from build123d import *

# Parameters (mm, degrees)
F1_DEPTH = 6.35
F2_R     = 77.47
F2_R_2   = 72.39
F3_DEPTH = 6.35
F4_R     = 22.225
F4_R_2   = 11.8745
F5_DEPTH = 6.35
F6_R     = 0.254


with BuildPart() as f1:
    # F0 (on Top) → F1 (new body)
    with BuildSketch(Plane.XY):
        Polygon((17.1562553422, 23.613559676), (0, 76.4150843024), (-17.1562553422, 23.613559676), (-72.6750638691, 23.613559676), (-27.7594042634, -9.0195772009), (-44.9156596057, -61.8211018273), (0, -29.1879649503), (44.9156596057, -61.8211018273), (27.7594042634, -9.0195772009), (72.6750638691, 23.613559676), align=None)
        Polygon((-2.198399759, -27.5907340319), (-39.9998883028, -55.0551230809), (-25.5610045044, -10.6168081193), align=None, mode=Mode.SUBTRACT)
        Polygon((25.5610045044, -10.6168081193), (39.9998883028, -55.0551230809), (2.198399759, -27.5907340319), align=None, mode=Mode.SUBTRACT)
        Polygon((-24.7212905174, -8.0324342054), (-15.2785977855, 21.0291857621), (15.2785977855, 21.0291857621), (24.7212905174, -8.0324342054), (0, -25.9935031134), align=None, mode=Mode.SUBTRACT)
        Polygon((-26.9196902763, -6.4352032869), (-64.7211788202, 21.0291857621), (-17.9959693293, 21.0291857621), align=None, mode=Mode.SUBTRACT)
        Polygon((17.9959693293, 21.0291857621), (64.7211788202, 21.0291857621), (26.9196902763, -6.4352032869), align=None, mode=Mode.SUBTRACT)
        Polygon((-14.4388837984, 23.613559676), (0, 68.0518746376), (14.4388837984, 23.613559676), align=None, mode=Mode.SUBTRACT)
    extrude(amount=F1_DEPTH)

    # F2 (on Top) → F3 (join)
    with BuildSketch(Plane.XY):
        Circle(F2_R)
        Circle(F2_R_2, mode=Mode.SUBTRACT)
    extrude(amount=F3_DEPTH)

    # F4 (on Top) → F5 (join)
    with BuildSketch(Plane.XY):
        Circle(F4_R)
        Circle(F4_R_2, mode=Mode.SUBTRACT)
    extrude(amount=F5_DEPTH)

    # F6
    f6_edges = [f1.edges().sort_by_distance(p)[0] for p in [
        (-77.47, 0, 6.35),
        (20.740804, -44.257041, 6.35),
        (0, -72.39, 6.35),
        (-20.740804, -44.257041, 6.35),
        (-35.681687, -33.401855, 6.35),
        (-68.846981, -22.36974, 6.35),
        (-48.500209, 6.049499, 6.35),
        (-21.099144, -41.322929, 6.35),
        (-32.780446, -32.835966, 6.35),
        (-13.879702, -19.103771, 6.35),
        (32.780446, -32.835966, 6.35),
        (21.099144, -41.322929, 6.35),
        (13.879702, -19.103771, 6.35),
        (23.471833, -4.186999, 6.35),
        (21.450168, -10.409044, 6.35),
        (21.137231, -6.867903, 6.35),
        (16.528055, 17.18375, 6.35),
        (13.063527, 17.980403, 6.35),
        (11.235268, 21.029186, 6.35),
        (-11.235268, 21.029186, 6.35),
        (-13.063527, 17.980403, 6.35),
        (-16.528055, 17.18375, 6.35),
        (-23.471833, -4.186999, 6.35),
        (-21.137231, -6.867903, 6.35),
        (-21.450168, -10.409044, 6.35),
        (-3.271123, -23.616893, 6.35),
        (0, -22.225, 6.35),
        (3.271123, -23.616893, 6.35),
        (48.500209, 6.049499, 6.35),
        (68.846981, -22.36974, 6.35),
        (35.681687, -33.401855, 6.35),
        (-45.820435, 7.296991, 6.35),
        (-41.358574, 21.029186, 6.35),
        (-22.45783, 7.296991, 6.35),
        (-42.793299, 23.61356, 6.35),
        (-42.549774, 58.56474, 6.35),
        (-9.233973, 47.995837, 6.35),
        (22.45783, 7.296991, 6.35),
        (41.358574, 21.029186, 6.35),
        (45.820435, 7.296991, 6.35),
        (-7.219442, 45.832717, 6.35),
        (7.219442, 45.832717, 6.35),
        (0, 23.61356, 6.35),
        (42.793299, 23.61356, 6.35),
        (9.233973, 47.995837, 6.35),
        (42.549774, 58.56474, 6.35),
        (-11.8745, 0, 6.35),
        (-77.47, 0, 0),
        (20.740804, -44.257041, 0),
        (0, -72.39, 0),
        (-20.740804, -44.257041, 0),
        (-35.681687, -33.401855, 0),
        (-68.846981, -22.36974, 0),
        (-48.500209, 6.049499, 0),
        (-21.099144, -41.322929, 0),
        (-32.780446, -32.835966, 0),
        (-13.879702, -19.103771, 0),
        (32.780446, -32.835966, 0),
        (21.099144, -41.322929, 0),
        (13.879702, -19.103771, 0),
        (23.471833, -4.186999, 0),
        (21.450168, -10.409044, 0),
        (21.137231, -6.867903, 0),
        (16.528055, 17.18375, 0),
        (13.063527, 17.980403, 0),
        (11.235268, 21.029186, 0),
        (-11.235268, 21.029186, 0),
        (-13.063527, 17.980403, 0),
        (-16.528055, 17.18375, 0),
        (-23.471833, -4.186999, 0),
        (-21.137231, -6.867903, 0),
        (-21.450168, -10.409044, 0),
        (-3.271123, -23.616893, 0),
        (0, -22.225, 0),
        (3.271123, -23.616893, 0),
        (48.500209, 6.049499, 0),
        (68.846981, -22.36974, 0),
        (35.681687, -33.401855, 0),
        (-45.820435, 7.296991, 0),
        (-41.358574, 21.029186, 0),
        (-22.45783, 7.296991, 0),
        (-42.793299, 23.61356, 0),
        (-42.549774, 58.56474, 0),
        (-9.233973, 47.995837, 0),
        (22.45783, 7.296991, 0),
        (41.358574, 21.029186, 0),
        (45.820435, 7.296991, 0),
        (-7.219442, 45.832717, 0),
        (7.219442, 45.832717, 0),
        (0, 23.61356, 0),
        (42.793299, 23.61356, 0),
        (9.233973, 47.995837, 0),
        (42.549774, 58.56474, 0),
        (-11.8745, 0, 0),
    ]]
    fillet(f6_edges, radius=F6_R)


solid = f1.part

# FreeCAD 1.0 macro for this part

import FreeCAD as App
import Part
import Sketcher

V = App.Vector
Q = App.Units.Quantity


def edges_at(feature, points):
    """Names of the edges that pass closest to the given points."""
    edges = feature.Shape.Edges
    near = lambda p: min(range(len(edges)), key=lambda i: edges[i].distToShape(Part.Vertex(*p))[0])
    return sorted({f"Edge{near(p) + 1}" for p in points})


def add_polygon(sketch, points):
    """Adds a closed chain of lines whose ends are joined by coincident constraints."""
    first, n = sketch.GeometryCount, len(points)
    for a, b in zip(points, points[1:] + points[:1]):
        sketch.addGeometry(Part.LineSegment(App.Vector(*a, 0), App.Vector(*b, 0)), False)
    for i in range(n):
        sketch.addConstraint(Sketcher.Constraint("Coincident", first + i, 2, first + (i + 1) % n, 1))

doc = App.newDocument("Part")
body = doc.addObject("PartDesign::Body", "Body")

# Sketch on XY plane
sketch1 = doc.addObject("Sketcher::SketchObject", "Sketch")
body.addObject(sketch1)
sketch1.AttachmentSupport = (doc.XY_Plane, [""])
sketch1.MapMode = "FlatFace"
add_polygon(sketch1, [(17, 24), (0, 76), (-17, 24), (-73, 24), (-28, -9), (-45, -62), (0, -29), (45, -62), (28, -9), (73, 24)])  # lines 0-9
add_polygon(sketch1, [(-26, -11), (-2, -28), (-40, -55)])  # lines 10-12
add_polygon(sketch1, [(2, -28), (26, -11), (40, -55)])  # lines 13-15
add_polygon(sketch1, [(0, -26), (-25, -8), (-15, 21), (15, 21), (25, -8)])  # lines 16-20
add_polygon(sketch1, [(-18, 21), (-27, -6), (-65, 21)])  # lines 21-23
add_polygon(sketch1, [(27, -6), (18, 21), (65, 21)])  # lines 24-26
add_polygon(sketch1, [(14, 24), (-14, 24), (0, 68)])  # lines 27-29
sketch1.addConstraint([
    Sketcher.Constraint("Horizontal", 2),
    Sketcher.Constraint("Horizontal", 9),
    Sketcher.Constraint("Horizontal", 18),
    Sketcher.Constraint("Horizontal", 23),
    Sketcher.Constraint("Horizontal", 25),
    Sketcher.Constraint("Horizontal", 27),
    Sketcher.Constraint("Symmetric", 4, 2, 6, 2, -2),
    Sketcher.Constraint("Symmetric", 3, 2, 7, 2, -2),
    Sketcher.Constraint("Symmetric", 2, 2, 8, 2, -2),
    Sketcher.Constraint("Symmetric", 12, 2, 13, 2, -2),
    Sketcher.Constraint("Symmetric", 11, 2, 14, 2, -2),
    Sketcher.Constraint("Symmetric", 10, 2, 15, 2, -2),
    Sketcher.Constraint("Symmetric", 16, 2, 19, 2, -2),
    Sketcher.Constraint("Symmetric", 23, 2, 24, 2, -2),
    Sketcher.Constraint("Symmetric", 21, 2, 26, 2, -2),
    Sketcher.Constraint("PointOnObject", 0, 2, -2),
    Sketcher.Constraint("PointOnObject", 5, 2, -2),
    Sketcher.Constraint("PointOnObject", 20, 2, -2),
    Sketcher.Constraint("PointOnObject", 28, 2, -2),
    Sketcher.Constraint("Parallel", 1, 4),
    Sketcher.Constraint("Parallel", 3, 6),
    Sketcher.Constraint("Parallel", 0, 7),
    Sketcher.Constraint("Parallel", 6, 10),
    Sketcher.Constraint("Parallel", 8, 11),
    Sketcher.Constraint("Parallel", 4, 12),
    Sketcher.Constraint("Parallel", 15, 16),
    Sketcher.Constraint("Parallel", 12, 17),
    Sketcher.Constraint("Parallel", 14, 19),
    Sketcher.Constraint("Parallel", 17, 21),
    Sketcher.Constraint("Parallel", 16, 22),
    Sketcher.Constraint("Parallel", 20, 26),
    Sketcher.Constraint("Parallel", 21, 28),
    Sketcher.Constraint("Parallel", 24, 29),
    Sketcher.Constraint("Horizontal", 18, 2, 22, 2),
    Sketcher.Constraint("Horizontal", 9, 2, 27, 2),
    Sketcher.Constraint("Equal", 1, 3),
    Sketcher.Constraint("Equal", 3, 4),
    Sketcher.Constraint("Equal", 4, 5),
    Sketcher.Constraint("Equal", 11, 12),
    Sketcher.Constraint("Equal", 16, 17),
    Sketcher.Constraint("Equal", 13, 21),
    Sketcher.Constraint("Equal", 15, 22),
    Sketcher.Constraint("Equal", 26, 28),
    Sketcher.Constraint("DistanceY", 1, 2, 0, 2, Q("2.0788002 in")),
    Sketcher.Constraint("DistanceX", 23, 1, 23, 2, Q("46.725209 mm")),
    Sketcher.Constraint("DistanceY", 4, 2, -1, 1, Q("61.821102 mm")),
    Sketcher.Constraint("DistanceX", 10, 2, -1, 1, Q("2.1984 mm")),
    Sketcher.Constraint("DistanceY", 10, 2, 16, 2, Q("19.5583 mm")),
    Sketcher.Constraint("DistanceX", 21, 2, 16, 2, Q("2.1984 mm")),
    Sketcher.Constraint("DistanceX", 18, 1, 18, 2, Q("30.557196 mm")),
    Sketcher.Constraint("DistanceY", 12, 2, -1, 1, Q("10.616808 mm")),
])
pad1 = doc.addObject("PartDesign::Pad", "Pad")
body.addObject(pad1)
pad1.Profile = sketch1
pad1.Length = Q("0.25 in")

# Sketch on XY plane
sketch2 = doc.addObject("Sketcher::SketchObject", "Sketch001")
body.addObject(sketch2)
sketch2.AttachmentSupport = (doc.XY_Plane, [""])
sketch2.MapMode = "FlatFace"
sketch2.addGeometry([
    Part.Circle(V(0, 0, 0), V(0, 0, 1), 77),
    Part.Circle(V(0, 0, 0), V(0, 0, 1), 72),
], False)
sketch2.addConstraint([
    Sketcher.Constraint("Coincident", 0, 3, -1, 1),
    Sketcher.Constraint("Coincident", 1, 3, -1, 1),
    Sketcher.Constraint("Diameter", 0, Q("6.1 in")),
    Sketcher.Constraint("Diameter", 1, Q("5.7 in")),
])
pad2 = doc.addObject("PartDesign::Pad", "Pad001")
body.addObject(pad2)
pad2.Profile = sketch2
pad2.Length = Q("0.25 in")

# Sketch on XY plane
sketch3 = doc.addObject("Sketcher::SketchObject", "Sketch002")
body.addObject(sketch3)
sketch3.AttachmentSupport = (doc.XY_Plane, [""])
sketch3.MapMode = "FlatFace"
sketch3.addGeometry([
    Part.Circle(V(0, 0, 0), V(0, 0, 1), 22),
    Part.Circle(V(0, 0, 0), V(0, 0, 1), 12),
], False)
sketch3.addConstraint([
    Sketcher.Constraint("Coincident", 0, 3, -1, 1),
    Sketcher.Constraint("Coincident", 1, 3, -1, 1),
    Sketcher.Constraint("Diameter", 0, Q("1.75 in")),
    Sketcher.Constraint("Diameter", 1, Q("0.935 in")),
])
pad3 = doc.addObject("PartDesign::Pad", "Pad002")
body.addObject(pad3)
pad3.Profile = sketch3
pad3.Length = Q("0.25 in")
doc.recompute()

fillet = doc.addObject("PartDesign::Fillet", "Fillet")
body.addObject(fillet)
fillet.Base = (pad3, edges_at(pad3, [
    (-77.47, 0, 6.35),
    (20.741, -44.257, 6.35),
    (0, -72.39, 6.35),
    (-20.741, -44.257, 6.35),
    (-35.682, -33.402, 6.35),
    (-68.847, -22.37, 6.35),
    (-48.5, 6.049, 6.35),
    (-21.099, -41.323, 6.35),
    (-32.78, -32.836, 6.35),
    (-13.88, -19.104, 6.35),
    (32.78, -32.836, 6.35),
    (21.099, -41.323, 6.35),
    (13.88, -19.104, 6.35),
    (23.472, -4.187, 6.35),
    (21.45, -10.409, 6.35),
    (21.137, -6.868, 6.35),
    (16.528, 17.184, 6.35),
    (13.064, 17.98, 6.35),
    (11.235, 21.029, 6.35),
    (-11.235, 21.029, 6.35),
    (-13.064, 17.98, 6.35),
    (-16.528, 17.184, 6.35),
    (-23.472, -4.187, 6.35),
    (-21.137, -6.868, 6.35),
    (-21.45, -10.409, 6.35),
    (-3.271, -23.617, 6.35),
    (0, -22.225, 6.35),
    (3.271, -23.617, 6.35),
    (48.5, 6.049, 6.35),
    (68.847, -22.37, 6.35),
    (35.682, -33.402, 6.35),
    (-45.82, 7.297, 6.35),
    (-41.359, 21.029, 6.35),
    (-22.458, 7.297, 6.35),
    (-42.793, 23.614, 6.35),
    (-42.55, 58.565, 6.35),
    (-9.234, 47.996, 6.35),
    (22.458, 7.297, 6.35),
    (41.359, 21.029, 6.35),
    (45.82, 7.297, 6.35),
    (-7.219, 45.833, 6.35),
    (7.219, 45.833, 6.35),
    (0, 23.614, 6.35),
    (42.793, 23.614, 6.35),
    (9.234, 47.996, 6.35),
    (42.55, 58.565, 6.35),
    (-11.874, 0, 6.35),
    (-77.47, 0, 0),
    (20.741, -44.257, 0),
    (0, -72.39, 0),
    (-20.741, -44.257, 0),
    (-35.682, -33.402, 0),
    (-68.847, -22.37, 0),
    (-48.5, 6.049, 0),
    (-21.099, -41.323, 0),
    (-32.78, -32.836, 0),
    (-13.88, -19.104, 0),
    (32.78, -32.836, 0),
    (21.099, -41.323, 0),
    (13.88, -19.104, 0),
    (23.472, -4.187, 0),
    (21.45, -10.409, 0),
    (21.137, -6.868, 0),
    (16.528, 17.184, 0),
    (13.064, 17.98, 0),
    (11.235, 21.029, 0),
    (-11.235, 21.029, 0),
    (-13.064, 17.98, 0),
    (-16.528, 17.184, 0),
    (-23.472, -4.187, 0),
    (-21.137, -6.868, 0),
    (-21.45, -10.409, 0),
    (-3.271, -23.617, 0),
    (0, -22.225, 0),
    (3.271, -23.617, 0),
    (48.5, 6.049, 0),
    (68.847, -22.37, 0),
    (35.682, -33.402, 0),
    (-45.82, 7.297, 0),
    (-41.359, 21.029, 0),
    (-22.458, 7.297, 0),
    (-42.793, 23.614, 0),
    (-42.55, 58.565, 0),
    (-9.234, 47.996, 0),
    (22.458, 7.297, 0),
    (41.359, 21.029, 0),
    (45.82, 7.297, 0),
    (-7.219, 45.833, 0),
    (7.219, 45.833, 0),
    (0, 23.614, 0),
    (42.793, 23.614, 0),
    (9.234, 47.996, 0),
    (42.55, 58.565, 0),
    (-11.874, 0, 0),
]))
fillet.Radius = Q("0.01 in")

doc.recompute()
